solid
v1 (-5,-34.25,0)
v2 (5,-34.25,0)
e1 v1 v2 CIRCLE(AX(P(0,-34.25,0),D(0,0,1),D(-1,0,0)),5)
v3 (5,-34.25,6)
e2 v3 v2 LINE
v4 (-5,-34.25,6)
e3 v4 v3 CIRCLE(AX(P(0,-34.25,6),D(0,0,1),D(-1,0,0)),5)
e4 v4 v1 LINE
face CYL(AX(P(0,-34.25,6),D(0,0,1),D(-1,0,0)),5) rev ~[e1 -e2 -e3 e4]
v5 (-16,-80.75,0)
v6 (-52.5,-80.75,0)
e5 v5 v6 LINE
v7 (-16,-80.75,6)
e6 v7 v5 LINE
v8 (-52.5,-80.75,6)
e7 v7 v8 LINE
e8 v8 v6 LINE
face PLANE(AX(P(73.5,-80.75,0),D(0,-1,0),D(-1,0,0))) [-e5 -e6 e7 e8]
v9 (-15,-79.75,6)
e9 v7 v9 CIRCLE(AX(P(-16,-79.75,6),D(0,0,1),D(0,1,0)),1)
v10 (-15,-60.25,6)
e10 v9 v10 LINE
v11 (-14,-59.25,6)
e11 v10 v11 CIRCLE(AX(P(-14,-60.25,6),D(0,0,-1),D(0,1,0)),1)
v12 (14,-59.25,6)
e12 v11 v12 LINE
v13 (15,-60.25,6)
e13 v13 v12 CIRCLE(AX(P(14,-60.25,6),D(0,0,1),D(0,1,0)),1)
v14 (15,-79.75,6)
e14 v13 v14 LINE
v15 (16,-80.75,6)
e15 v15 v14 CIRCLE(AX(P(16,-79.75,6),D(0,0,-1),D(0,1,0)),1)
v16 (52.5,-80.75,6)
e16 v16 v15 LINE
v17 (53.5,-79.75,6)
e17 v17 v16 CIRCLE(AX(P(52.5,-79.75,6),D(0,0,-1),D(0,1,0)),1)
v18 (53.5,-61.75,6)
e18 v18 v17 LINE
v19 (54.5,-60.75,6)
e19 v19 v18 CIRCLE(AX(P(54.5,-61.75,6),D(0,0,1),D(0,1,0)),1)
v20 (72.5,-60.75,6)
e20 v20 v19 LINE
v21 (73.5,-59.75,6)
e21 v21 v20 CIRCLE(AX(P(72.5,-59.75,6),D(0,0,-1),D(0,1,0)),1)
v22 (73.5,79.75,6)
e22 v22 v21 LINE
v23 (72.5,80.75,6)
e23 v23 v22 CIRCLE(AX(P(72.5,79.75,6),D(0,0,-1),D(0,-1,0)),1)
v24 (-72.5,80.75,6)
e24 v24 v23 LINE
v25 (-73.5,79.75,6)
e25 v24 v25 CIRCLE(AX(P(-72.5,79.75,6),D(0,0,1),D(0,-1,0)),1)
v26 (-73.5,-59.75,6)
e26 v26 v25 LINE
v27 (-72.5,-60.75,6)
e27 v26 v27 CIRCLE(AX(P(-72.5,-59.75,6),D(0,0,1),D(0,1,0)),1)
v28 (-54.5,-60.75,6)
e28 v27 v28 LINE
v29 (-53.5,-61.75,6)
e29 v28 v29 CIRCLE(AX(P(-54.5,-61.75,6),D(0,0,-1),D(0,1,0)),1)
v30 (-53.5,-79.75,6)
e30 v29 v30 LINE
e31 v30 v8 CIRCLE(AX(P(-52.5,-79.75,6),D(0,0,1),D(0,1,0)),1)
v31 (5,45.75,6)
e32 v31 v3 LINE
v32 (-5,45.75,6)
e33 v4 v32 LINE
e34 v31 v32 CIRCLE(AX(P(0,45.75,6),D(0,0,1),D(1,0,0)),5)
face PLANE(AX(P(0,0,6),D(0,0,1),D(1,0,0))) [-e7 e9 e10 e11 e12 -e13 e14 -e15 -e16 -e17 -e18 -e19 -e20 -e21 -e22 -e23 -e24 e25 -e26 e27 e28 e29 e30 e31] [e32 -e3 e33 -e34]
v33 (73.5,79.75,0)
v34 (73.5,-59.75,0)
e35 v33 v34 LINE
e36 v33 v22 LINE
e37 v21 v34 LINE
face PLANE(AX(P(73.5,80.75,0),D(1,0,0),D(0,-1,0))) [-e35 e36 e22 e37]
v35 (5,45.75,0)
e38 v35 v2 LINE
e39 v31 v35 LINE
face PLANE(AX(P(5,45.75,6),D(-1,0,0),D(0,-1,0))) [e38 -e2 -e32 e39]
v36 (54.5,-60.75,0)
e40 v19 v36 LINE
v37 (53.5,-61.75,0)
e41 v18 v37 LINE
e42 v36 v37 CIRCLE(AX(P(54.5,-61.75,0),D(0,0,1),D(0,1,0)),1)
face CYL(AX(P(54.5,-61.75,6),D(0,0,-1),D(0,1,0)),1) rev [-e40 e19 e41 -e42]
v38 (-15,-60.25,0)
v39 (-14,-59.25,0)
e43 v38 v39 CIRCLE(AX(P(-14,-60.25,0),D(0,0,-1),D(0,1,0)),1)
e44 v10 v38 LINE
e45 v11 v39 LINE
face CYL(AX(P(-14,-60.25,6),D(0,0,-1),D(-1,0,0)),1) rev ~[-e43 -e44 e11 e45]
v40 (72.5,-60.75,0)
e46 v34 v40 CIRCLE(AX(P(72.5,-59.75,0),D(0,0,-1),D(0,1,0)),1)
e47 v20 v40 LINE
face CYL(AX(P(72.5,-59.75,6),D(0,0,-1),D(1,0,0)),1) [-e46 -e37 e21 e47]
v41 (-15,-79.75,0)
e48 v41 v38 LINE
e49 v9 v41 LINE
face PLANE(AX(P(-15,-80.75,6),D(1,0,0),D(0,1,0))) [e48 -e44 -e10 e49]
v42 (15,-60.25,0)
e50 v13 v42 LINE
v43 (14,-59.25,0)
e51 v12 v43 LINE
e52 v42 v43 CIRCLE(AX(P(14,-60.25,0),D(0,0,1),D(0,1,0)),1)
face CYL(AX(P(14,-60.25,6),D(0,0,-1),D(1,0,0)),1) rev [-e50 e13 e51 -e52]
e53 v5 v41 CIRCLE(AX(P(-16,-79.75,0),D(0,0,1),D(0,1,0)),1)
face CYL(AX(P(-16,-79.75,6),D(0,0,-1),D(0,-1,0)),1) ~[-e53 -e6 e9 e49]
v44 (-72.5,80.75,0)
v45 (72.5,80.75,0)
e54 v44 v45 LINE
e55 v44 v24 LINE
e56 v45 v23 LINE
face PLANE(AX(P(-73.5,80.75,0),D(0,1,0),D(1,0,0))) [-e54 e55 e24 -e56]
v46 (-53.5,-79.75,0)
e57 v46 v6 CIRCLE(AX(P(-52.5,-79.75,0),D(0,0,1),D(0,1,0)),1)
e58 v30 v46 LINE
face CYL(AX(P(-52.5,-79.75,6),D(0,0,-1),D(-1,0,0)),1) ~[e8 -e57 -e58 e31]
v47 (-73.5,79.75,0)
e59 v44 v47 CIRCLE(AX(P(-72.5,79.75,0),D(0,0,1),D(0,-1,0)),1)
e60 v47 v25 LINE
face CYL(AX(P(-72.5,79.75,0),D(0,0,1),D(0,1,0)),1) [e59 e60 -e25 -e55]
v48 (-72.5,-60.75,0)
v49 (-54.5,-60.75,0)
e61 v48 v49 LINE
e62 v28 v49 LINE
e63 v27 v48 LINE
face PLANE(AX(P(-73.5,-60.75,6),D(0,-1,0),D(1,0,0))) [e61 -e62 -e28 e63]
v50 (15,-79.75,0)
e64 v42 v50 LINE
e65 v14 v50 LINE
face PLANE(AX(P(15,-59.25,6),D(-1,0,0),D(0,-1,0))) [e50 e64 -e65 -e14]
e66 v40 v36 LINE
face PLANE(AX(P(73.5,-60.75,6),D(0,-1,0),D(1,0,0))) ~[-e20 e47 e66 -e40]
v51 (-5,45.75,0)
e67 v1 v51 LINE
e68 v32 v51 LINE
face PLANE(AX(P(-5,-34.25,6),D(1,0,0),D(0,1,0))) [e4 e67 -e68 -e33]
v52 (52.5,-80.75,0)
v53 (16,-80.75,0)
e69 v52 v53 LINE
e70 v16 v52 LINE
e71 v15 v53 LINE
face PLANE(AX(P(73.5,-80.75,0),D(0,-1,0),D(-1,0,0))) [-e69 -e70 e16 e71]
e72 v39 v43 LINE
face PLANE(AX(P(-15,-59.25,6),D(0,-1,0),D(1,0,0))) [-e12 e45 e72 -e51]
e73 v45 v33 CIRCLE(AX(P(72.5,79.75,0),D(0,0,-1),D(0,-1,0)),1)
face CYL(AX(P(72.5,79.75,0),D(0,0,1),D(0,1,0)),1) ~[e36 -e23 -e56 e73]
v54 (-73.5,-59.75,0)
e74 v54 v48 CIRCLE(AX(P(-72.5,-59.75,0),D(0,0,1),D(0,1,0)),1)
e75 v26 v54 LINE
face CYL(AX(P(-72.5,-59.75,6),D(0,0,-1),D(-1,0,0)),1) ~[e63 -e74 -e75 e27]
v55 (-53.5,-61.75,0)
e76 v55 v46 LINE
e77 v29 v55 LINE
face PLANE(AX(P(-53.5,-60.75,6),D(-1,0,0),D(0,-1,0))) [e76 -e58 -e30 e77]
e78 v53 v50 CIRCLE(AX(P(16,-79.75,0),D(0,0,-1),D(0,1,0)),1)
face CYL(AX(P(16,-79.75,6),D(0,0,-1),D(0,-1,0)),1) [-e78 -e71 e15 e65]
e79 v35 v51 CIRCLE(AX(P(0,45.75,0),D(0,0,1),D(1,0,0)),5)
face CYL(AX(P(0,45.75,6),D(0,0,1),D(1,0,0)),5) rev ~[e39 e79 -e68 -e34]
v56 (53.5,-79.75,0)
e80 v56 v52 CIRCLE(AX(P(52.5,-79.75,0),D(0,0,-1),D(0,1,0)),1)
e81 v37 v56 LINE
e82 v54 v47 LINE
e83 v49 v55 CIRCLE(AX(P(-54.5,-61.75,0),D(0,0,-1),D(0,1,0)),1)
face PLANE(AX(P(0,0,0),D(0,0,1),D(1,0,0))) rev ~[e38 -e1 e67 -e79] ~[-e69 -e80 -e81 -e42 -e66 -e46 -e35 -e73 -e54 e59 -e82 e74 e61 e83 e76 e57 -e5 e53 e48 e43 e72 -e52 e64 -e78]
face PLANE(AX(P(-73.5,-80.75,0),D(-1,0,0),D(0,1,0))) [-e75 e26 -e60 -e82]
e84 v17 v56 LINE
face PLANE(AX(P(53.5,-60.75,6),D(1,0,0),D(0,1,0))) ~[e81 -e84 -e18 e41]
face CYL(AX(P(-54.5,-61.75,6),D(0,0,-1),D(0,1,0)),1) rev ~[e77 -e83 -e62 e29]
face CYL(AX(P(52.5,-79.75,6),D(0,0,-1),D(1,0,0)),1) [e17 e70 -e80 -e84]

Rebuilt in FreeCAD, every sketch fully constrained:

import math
import FreeCAD as App
import Part
import Sketcher

V = App.Vector
Q = App.Units.Quantity


def edges_at(feature, points):
    """Names of the edges that pass closest to the given points."""
    edges = feature.Shape.Edges
    near = lambda p: min(range(len(edges)), key=lambda i: edges[i].distToShape(Part.Vertex(*p))[0])
    return sorted({f"Edge{near(p) + 1}" for p in points})


def add_polygon(sketch, points):
    """Adds a closed chain of lines whose ends are joined by coincident constraints."""
    first, n = sketch.GeometryCount, len(points)
    for a, b in zip(points, points[1:] + points[:1]):
        sketch.addGeometry(Part.LineSegment(App.Vector(*a, 0), App.Vector(*b, 0)), False)
    for i in range(n):
        sketch.addConstraint(Sketcher.Constraint("Coincident", first + i, 2, first + (i + 1) % n, 1))

doc = App.newDocument("Part")
body = doc.addObject("PartDesign::Body", "Body")

sketch1 = body.newObject("Sketcher::SketchObject", "Sketch")
sketch1.AttachmentSupport = (doc.getObject("XY_Plane"), [""])
sketch1.MapMode = "FlatFace"
add_polygon(sketch1, [(74, 81), (-74, 81), (-74, -81), (74, -81)])
sketch1.addConstraint([
    Sketcher.Constraint("Horizontal", 0),
    Sketcher.Constraint("Vertical", 1),
    Sketcher.Constraint("Horizontal", 2),
    Sketcher.Constraint("Vertical", 3),
    Sketcher.Constraint("Symmetric", 0, 2, 2, 2, -1, 1),
    Sketcher.Constraint("DistanceX", 0, 2, 0, 1, Q("147 mm")),
    Sketcher.Constraint("DistanceY", 1, 2, 1, 1, Q("161.5 mm")),
])
pad1 = body.newObject("PartDesign::Pad", "Pad")
pad1.Profile = sketch1
pad1.Length = 6

sketch2 = body.newObject("Sketcher::SketchObject", "Sketch001")
sketch2.AttachmentSupport = (doc.getObject("XY_Plane"), [""])
sketch2.MapMode = "FlatFace"
sketch2.AttachmentOffset = App.Placement(V(0, 0, 6), App.Rotation())
add_polygon(sketch2, [(-54, -61), (-74, -61), (-74, -81), (-54, -81)])
sketch2.addConstraint([
    Sketcher.Constraint("Horizontal", 0),
    Sketcher.Constraint("Vertical", 1),
    Sketcher.Constraint("Horizontal", 2),
    Sketcher.Constraint("Vertical", 3),
    Sketcher.Constraint("Equal", 2, 1),
    Sketcher.Constraint("DistanceX", 0, 2, 0, 1, Q("20 mm")),
    Sketcher.Constraint("DistanceX", 0, 2, -1, 1, Q("73.5 mm")),
    Sketcher.Constraint("DistanceY", 0, 2, -1, 1, Q("60.75 mm")),
])
pocket1 = body.newObject("PartDesign::Pocket", "Pocket")
pocket1.Profile = sketch2
pocket1.Length = 15
doc.recompute()

mirrored = body.newObject("PartDesign::Mirrored", "Mirrored")
mirrored.Originals = [pocket1]
mirrored.MirrorPlane = (doc.getObject("YZ_Plane"), [""])
body.Tip = mirrored

sketch3 = body.newObject("Sketcher::SketchObject", "Sketch002")
sketch3.AttachmentSupport = (doc.getObject("XY_Plane"), [""])
sketch3.MapMode = "FlatFace"
sketch3.AttachmentOffset = App.Placement(V(0, 0, 6), App.Rotation())
add_polygon(sketch3, [(15, -59), (-15, -59), (-15, -81), (15, -81)])
sketch3.addConstraint([
    Sketcher.Constraint("Horizontal", 0),
    Sketcher.Constraint("Vertical", 1),
    Sketcher.Constraint("Horizontal", 2),
    Sketcher.Constraint("Vertical", 3),
    Sketcher.Constraint("DistanceX", 0, 2, 0, 1, Q("30 mm")),
    Sketcher.Constraint("DistanceY", 1, 2, 1, 1, Q("21.5 mm")),
    Sketcher.Constraint("DistanceX", 0, 2, -1, 1, Q("15 mm")),
    Sketcher.Constraint("DistanceY", 0, 2, -1, 1, Q("59.25 mm")),
])
pocket2 = body.newObject("PartDesign::Pocket", "Pocket001")
pocket2.Profile = sketch3
pocket2.Length = 6

sketch4 = body.newObject("Sketcher::SketchObject", "Sketch003")
sketch4.AttachmentSupport = (doc.getObject("XY_Plane"), [""])
sketch4.MapMode = "FlatFace"
sketch4.AttachmentOffset = App.Placement(V(0, 0, 6), App.Rotation())
sketch4.addGeometry([
    Part.LineSegment(V(5, -34, 0), V(5, 46, 0)),
    Part.ArcOfCircle(Part.Circle(V(0, 46, 0), V(0, 0, 1), 5), math.radians(0), math.radians(180)),
    Part.LineSegment(V(-5, 46, 0), V(-5, -34, 0)),
    Part.ArcOfCircle(Part.Circle(V(0, -34, 0), V(0, 0, 1), 5), math.radians(180), math.radians(360)),
], False)
sketch4.addConstraint([
    Sketcher.Constraint("Tangent", 0, 2, 1, 1),
    Sketcher.Constraint("Tangent", 1, 2, 2, 1),
    Sketcher.Constraint("Tangent", 2, 2, 3, 1),
    Sketcher.Constraint("Tangent", 3, 2, 0, 1),
    Sketcher.Constraint("Vertical", 0),
    Sketcher.Constraint("Vertical", 2),
    Sketcher.Constraint("PointOnObject", 1, 3, -2),
    Sketcher.Constraint("Radius", 1, Q("5 mm")),
    Sketcher.Constraint("DistanceY", 0, 1, 0, 2, Q("80 mm")),
    Sketcher.Constraint("DistanceY", -1, 1, 1, 3, Q("45.75 mm")),
])
pocket3 = body.newObject("PartDesign::Pocket", "Pocket002")
pocket3.Profile = sketch4
pocket3.Length = 6
doc.recompute()

fillet = body.newObject("PartDesign::Fillet", "Fillet")
fillet.Base = (pocket3, edges_at(pocket3, [
    (-73.5, 80.75, 3),
    (73.5, 80.75, 3),
    (73.5, -60.75, 3),
    (53.5, -60.75, 3),
    (53.5, -80.75, 3),
    (15, -80.75, 3),
    (15, -59.25, 3),
    (-15, -59.25, 3),
    (-15, -80.75, 3),
    (-53.5, -80.75, 3),
    (-73.5, -60.75, 3),
    (-53.5, -60.75, 3),
]))
fillet.Radius = 1

doc.recompute()
